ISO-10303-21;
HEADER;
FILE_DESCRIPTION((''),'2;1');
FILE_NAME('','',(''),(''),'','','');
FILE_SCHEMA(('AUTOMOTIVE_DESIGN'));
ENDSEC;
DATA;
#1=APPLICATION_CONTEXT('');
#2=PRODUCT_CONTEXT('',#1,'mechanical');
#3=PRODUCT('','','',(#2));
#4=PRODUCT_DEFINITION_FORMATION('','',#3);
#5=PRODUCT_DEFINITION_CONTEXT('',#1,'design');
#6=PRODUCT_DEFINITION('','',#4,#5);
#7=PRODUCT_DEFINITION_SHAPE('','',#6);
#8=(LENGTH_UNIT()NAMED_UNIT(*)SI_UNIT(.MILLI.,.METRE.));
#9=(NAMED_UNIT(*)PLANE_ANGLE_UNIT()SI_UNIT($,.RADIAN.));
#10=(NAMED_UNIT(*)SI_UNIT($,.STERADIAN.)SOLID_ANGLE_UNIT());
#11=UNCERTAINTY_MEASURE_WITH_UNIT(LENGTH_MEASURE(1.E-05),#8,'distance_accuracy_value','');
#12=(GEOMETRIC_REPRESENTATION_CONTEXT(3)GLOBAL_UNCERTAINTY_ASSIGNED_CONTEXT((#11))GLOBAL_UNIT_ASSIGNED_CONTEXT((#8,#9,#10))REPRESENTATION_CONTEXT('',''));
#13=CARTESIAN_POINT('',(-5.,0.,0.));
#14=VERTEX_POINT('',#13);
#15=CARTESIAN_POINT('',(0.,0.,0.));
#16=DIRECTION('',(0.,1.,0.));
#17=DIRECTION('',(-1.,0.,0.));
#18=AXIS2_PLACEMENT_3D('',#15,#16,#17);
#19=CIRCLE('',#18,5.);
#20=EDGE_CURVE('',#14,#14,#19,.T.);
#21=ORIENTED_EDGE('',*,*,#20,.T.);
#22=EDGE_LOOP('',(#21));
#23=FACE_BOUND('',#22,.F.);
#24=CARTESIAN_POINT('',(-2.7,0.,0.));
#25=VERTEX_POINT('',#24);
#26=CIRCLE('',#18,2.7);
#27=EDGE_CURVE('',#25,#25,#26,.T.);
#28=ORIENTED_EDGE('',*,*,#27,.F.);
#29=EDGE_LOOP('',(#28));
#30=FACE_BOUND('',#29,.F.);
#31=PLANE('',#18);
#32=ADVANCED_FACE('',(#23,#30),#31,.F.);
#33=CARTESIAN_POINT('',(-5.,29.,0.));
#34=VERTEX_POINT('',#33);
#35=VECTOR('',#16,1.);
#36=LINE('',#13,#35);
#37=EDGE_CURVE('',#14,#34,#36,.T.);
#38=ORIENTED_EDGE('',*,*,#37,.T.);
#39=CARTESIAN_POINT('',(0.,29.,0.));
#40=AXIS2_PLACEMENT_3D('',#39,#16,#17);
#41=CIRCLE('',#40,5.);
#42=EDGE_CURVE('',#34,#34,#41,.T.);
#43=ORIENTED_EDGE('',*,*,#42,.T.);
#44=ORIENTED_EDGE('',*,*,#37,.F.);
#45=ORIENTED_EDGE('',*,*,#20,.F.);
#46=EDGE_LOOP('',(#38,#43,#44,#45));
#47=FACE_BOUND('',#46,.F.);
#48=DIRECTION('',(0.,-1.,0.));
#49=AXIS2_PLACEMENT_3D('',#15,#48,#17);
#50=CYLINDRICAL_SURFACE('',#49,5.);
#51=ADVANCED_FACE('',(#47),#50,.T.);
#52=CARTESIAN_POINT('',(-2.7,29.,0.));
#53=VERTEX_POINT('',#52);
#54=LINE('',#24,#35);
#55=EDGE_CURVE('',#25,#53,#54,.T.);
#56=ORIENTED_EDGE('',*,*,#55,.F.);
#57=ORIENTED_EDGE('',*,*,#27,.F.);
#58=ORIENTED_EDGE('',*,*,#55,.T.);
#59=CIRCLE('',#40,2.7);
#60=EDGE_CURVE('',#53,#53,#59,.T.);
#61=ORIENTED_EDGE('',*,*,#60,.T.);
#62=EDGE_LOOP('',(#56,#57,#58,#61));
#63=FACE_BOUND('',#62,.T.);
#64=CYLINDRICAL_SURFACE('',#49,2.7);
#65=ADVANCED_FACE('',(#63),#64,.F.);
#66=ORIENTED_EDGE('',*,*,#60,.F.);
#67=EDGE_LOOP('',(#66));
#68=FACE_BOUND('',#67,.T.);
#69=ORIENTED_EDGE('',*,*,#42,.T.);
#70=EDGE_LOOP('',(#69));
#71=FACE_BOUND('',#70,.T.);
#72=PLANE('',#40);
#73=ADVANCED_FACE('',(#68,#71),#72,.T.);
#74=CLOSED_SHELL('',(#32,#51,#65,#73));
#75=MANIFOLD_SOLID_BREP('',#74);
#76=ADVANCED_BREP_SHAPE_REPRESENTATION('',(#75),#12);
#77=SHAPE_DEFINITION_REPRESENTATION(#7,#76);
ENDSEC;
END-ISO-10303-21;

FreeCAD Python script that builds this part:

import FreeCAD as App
import Part
import Sketcher

V = App.Vector

doc = App.newDocument("Part")
body = doc.addObject("PartDesign::Body", "Body")

# Sketch on XZ plane
sketch1 = body.newObject("Sketcher::SketchObject", "Sketch")
sketch1.AttachmentSupport = (doc.getObject("XZ_Plane"), [""])
sketch1.MapMode = "FlatFace"
sketch1.addGeometry(Part.Circle(V(0, 0, 0), V(0, 0, 1), 5), False)
sketch1.addGeometry(Part.Circle(V(0, 0, 0), V(0, 0, 1), 2.7), False)
sketch1.addConstraint(Sketcher.Constraint("Coincident", 0, 3, -1, 1))
sketch1.addConstraint(Sketcher.Constraint("Coincident", 1, 3, -1, 1))
sketch1.addConstraint(Sketcher.Constraint("Diameter", 0, 10.0))
sketch1.addConstraint(Sketcher.Constraint("Diameter", 1, 5.4))
pad1 = body.newObject("PartDesign::Pad", "Pad")
pad1.Profile = sketch1
pad1.Length = 29
pad1.Reversed = True

doc.recompute()
